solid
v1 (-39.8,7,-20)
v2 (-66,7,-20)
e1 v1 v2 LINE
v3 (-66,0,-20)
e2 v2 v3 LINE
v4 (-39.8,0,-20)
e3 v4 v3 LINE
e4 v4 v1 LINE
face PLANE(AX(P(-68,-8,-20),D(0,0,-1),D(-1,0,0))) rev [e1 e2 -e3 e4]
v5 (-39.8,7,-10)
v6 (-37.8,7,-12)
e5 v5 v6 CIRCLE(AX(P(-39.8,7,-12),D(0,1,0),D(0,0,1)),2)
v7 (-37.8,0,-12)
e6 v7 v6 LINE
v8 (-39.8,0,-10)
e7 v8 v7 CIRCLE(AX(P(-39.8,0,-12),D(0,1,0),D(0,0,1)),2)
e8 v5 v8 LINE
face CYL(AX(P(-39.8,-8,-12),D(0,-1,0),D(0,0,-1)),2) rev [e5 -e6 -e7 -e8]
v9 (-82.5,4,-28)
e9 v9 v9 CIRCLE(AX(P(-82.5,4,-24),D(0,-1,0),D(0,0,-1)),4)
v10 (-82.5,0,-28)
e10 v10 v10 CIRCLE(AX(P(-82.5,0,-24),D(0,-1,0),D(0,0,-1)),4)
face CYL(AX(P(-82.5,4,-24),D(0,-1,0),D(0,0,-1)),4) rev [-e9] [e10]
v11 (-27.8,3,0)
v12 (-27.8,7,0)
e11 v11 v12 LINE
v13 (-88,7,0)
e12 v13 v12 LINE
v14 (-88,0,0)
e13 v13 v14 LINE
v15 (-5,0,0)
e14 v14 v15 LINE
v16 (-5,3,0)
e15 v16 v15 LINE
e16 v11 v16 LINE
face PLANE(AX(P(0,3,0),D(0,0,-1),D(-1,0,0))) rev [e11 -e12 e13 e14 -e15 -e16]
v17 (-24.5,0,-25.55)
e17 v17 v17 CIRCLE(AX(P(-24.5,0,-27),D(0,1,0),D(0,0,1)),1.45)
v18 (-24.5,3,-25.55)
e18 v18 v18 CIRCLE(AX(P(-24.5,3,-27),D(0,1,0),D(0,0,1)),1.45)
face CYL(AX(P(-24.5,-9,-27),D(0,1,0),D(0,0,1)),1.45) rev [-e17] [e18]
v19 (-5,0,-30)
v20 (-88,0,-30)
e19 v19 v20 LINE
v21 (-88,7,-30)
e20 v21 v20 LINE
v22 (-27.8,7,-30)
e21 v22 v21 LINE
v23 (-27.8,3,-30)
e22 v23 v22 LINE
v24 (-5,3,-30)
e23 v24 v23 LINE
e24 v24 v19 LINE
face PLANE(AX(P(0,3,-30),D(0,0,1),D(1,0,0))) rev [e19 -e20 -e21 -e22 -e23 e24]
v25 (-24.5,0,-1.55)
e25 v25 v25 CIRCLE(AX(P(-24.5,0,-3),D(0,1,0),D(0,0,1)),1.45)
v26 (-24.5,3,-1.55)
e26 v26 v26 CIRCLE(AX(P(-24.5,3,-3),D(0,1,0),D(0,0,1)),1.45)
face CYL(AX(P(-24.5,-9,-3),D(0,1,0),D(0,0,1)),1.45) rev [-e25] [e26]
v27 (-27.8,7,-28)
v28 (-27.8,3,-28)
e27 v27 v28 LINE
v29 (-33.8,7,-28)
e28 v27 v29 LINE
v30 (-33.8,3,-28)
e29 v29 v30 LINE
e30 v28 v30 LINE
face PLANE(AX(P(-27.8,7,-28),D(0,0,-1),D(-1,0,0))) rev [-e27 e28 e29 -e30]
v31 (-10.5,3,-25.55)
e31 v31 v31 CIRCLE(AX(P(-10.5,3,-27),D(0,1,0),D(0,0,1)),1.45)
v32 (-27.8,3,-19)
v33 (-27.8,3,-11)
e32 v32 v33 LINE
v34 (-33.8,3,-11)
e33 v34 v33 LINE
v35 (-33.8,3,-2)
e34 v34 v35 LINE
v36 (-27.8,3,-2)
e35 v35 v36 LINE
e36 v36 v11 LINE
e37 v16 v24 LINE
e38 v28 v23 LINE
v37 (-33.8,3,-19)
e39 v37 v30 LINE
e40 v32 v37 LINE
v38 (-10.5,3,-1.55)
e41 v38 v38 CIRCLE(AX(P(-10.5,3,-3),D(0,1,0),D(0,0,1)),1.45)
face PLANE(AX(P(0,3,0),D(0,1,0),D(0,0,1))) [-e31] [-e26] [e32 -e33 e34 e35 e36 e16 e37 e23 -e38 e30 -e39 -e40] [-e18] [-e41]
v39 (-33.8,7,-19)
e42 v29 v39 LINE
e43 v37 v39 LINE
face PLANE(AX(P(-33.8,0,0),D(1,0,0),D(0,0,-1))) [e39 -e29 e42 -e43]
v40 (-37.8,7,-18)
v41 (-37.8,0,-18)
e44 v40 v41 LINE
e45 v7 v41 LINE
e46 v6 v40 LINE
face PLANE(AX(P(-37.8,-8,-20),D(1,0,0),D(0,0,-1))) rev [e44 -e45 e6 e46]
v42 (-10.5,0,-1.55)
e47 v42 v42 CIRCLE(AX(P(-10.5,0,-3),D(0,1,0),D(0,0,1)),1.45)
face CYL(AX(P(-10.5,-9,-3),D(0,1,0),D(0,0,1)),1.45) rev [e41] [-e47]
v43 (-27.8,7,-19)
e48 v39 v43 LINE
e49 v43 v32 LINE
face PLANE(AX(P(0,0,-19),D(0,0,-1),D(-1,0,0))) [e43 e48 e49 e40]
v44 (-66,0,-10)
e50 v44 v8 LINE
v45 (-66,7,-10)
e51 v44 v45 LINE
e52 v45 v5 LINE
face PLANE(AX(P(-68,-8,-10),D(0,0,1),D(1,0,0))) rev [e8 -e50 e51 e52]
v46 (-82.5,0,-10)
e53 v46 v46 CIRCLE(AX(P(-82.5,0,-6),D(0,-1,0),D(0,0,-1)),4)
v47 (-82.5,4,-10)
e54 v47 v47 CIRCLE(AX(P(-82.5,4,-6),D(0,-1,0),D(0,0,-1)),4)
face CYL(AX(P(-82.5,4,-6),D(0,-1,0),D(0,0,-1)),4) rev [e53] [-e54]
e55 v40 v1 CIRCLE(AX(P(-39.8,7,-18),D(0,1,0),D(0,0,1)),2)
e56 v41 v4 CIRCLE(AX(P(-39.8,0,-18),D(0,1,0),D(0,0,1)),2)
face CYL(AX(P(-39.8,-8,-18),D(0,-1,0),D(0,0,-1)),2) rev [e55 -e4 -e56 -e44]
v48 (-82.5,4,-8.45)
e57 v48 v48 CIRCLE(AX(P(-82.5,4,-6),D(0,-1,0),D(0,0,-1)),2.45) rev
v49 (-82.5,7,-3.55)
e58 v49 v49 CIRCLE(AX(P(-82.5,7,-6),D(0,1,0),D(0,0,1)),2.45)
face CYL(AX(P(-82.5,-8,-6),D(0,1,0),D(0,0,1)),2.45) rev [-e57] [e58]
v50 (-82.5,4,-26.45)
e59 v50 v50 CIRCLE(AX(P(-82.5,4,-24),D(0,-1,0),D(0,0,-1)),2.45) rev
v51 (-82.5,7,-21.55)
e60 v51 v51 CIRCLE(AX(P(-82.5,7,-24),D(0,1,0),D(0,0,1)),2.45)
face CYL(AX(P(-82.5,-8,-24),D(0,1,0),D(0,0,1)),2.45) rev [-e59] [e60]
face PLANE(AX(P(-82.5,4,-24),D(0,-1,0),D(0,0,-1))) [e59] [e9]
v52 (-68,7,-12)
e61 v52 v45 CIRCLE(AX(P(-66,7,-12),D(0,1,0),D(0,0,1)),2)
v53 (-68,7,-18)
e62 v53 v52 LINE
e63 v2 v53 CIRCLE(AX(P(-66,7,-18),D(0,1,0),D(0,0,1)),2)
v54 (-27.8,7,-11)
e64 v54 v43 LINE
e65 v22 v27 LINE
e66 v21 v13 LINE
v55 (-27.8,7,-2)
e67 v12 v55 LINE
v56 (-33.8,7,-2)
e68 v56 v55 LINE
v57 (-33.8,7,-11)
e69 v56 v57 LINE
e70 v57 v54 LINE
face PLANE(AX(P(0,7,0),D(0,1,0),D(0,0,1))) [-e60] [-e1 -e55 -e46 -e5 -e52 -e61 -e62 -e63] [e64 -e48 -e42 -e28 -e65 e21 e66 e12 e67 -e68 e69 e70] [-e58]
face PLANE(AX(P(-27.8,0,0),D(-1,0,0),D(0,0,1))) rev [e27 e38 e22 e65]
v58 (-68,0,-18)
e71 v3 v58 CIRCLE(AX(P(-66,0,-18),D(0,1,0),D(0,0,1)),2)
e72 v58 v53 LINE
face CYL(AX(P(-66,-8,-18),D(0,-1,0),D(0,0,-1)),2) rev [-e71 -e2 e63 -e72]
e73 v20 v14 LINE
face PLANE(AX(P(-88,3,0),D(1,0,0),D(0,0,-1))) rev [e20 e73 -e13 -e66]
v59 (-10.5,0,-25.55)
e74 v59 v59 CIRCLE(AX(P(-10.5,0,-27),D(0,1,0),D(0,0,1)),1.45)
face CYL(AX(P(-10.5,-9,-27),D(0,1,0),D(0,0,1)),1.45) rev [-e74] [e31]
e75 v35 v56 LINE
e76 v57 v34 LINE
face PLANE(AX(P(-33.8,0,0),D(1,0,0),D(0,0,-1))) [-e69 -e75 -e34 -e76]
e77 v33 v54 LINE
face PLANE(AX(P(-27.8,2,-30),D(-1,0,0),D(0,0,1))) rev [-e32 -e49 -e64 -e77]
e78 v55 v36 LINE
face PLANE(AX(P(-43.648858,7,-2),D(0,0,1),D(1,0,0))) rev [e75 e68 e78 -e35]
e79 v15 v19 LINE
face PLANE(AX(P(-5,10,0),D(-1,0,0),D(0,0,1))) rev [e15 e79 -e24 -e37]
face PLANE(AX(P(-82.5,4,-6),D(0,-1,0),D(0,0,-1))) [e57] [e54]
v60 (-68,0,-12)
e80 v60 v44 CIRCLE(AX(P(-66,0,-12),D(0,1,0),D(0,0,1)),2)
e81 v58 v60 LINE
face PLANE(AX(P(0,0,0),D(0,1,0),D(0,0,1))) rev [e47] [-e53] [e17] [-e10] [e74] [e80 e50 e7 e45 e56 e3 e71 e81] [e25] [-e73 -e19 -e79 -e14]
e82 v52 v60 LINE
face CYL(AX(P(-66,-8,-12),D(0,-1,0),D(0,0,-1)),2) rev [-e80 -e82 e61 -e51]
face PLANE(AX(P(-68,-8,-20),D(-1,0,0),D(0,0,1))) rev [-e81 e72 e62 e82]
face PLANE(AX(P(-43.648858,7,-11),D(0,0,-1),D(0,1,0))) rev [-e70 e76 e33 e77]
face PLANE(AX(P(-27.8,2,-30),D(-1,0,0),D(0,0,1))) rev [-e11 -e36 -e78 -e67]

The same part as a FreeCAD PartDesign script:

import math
import FreeCAD as App
import Part
import Sketcher
Q = App.Units.Quantity


def edges_at(feature, points):
    """Names of the edges that pass closest to the given points."""
    edges = feature.Shape.Edges
    near = lambda p: min(range(len(edges)), key=lambda i: edges[i].distToShape(Part.Vertex(*p))[0])
    return sorted({f"Edge{near(p) + 1}" for p in points})


def add_polygon(sketch, points):
    """Adds a closed chain of lines whose ends are joined by coincident constraints."""
    first, n = sketch.GeometryCount, len(points)
    for a, b in zip(points, points[1:] + points[:1]):
        sketch.addGeometry(Part.LineSegment(App.Vector(*a, 0), App.Vector(*b, 0)), False)
    for i in range(n):
        sketch.addConstraint(Sketcher.Constraint("Coincident", first + i, 2, first + (i + 1) % n, 1))

doc = App.newDocument("Part")
body = doc.addObject("PartDesign::Body", "Body")

sketch1 = doc.addObject("Sketcher::SketchObject", "Sketch")
body.addObject(sketch1)
sketch1.AttachmentSupport = (doc.XZ_Plane, [""])
sketch1.MapMode = "FlatFace"
add_polygon(sketch1, [(-88, -30), (-88, 0), (0, 0), (0, -30)])
sketch1.addConstraint([
    Sketcher.Constraint("Vertical", 0),
    Sketcher.Constraint("Horizontal", 1),
    Sketcher.Constraint("Vertical", 2),
    Sketcher.Constraint("Horizontal", 3),
    Sketcher.Constraint("Coincident", 1, 2, -1, 1),
    Sketcher.Constraint("DistanceX", 1, 1, 1, 2, Q("88 mm")),
    Sketcher.Constraint("DistanceY", 0, 1, 0, 2, Q("30 mm")),
])
pad1 = doc.addObject("PartDesign::Pad", "Pad")
body.addObject(pad1)
pad1.Profile = sketch1
pad1.Length = 3
pad1.Reversed = True

sketch2 = doc.addObject("Sketcher::SketchObject", "Sketch001")
body.addObject(sketch2)
sketch2.AttachmentSupport = (doc.XZ_Plane, [""])
sketch2.MapMode = "FlatFace"
sketch2.AttachmentOffset = App.Placement(App.Vector(0, 0, -3), App.Rotation())
add_polygon(sketch2, [(-27.8, -30), (-27.8, 0), (0, 0), (0, -30)])
sketch2.addConstraint([
    Sketcher.Constraint("Vertical", 0),
    Sketcher.Constraint("Horizontal", 1),
    Sketcher.Constraint("Vertical", 2),
    Sketcher.Constraint("Horizontal", 3),
    Sketcher.Constraint("Coincident", 1, 2, -1, 1),
    Sketcher.Constraint("DistanceY", 0, 1, 0, 2, Q("30 mm")),
    Sketcher.Constraint("DistanceX", 1, 1, 1, 2, Q("27.8 mm")),
])
pocket1 = doc.addObject("PartDesign::Pocket", "Pocket")
body.addObject(pocket1)
pocket1.Profile = sketch2
pocket1.Length = 1
pocket1.Reversed = True

sketch3 = doc.addObject("Sketcher::SketchObject", "Sketch002")
body.addObject(sketch3)
sketch3.AttachmentSupport = (doc.XZ_Plane, [""])
sketch3.MapMode = "FlatFace"
sketch3.AttachmentOffset = App.Placement(App.Vector(0, 0, -2), App.Rotation())
sketch3.addGeometry([
    Part.Circle(App.Vector(-24.5, -27, 0), App.Vector(0, 0, 1), 1.45),
    Part.Circle(App.Vector(-24.5, -3, 0), App.Vector(0, 0, 1), 1.45),
    Part.Circle(App.Vector(-10.5, -3, 0), App.Vector(0, 0, 1), 1.45),
    Part.Circle(App.Vector(-10.5, -27, 0), App.Vector(0, 0, 1), 1.45),
], False)
sketch3.addConstraint([
    Sketcher.Constraint("Equal", 0, 1),
    Sketcher.Constraint("Equal", 1, 2),
    Sketcher.Constraint("Equal", 2, 3),
    Sketcher.Constraint("Horizontal", 1, 3, 2, 3),
    Sketcher.Constraint("Horizontal", 0, 3, 3, 3),
    Sketcher.Constraint("Vertical", 0, 3, 1, 3),
    Sketcher.Constraint("Vertical", 2, 3, 3, 3),
    Sketcher.Constraint("Diameter", 0, Q("2.9 mm")),
    Sketcher.Constraint("DistanceY", 0, 3, -1, 1, Q("27 mm")),
    Sketcher.Constraint("DistanceY", 1, 3, -1, 1, Q("3 mm")),
    Sketcher.Constraint("DistanceX", 1, 3, 2, 3, Q("14 mm")),
    Sketcher.Constraint("DistanceX", 0, 3, -1, 1, Q("24.5 mm")),
])
pocket2 = doc.addObject("PartDesign::Pocket", "Pocket001")
body.addObject(pocket2)
pocket2.Profile = sketch3
pocket2.Length = 11
pocket2.Reversed = True

sketch4 = doc.addObject("Sketcher::SketchObject", "Sketch003")
body.addObject(sketch4)
sketch4.AttachmentSupport = (doc.XZ_Plane, [""])
sketch4.MapMode = "FlatFace"
sketch4.AttachmentOffset = App.Placement(App.Vector(0, 0, -3), App.Rotation())
sketch4.addGeometry([
    Part.Circle(App.Vector(-82.5, -24, 0), App.Vector(0, 0, 1), 2.45),
    Part.Circle(App.Vector(-82.5, -6, 0), App.Vector(0, 0, 1), 2.45),
], False)
sketch4.addConstraint([
    Sketcher.Constraint("Equal", 0, 1),
    Sketcher.Constraint("Vertical", 0, 3, 1, 3),
    Sketcher.Constraint("Diameter", 0, Q("4.9 mm")),
    Sketcher.Constraint("DistanceY", 0, 3, -1, 1, Q("24 mm")),
    Sketcher.Constraint("DistanceY", 1, 3, -1, 1, Q("6 mm")),
    Sketcher.Constraint("DistanceX", 0, 3, -1, 1, Q("82.5 mm")),
])
pocket3 = doc.addObject("PartDesign::Pocket", "Pocket002")
body.addObject(pocket3)
pocket3.Profile = sketch4
pocket3.Length = 11
pocket3.Reversed = True

sketch5 = doc.addObject("Sketcher::SketchObject", "Sketch004")
body.addObject(sketch5)
sketch5.AttachmentSupport = (doc.XZ_Plane, [""])
sketch5.MapMode = "FlatFace"
sketch5.AttachmentOffset = App.Placement(App.Vector(0, 0, -3), App.Rotation())
add_polygon(sketch5, [(-68, -20), (-68, -10), (-37.8, -10), (-37.8, -20)])
sketch5.addConstraint([
    Sketcher.Constraint("Vertical", 0),
    Sketcher.Constraint("Horizontal", 1),
    Sketcher.Constraint("Vertical", 2),
    Sketcher.Constraint("Horizontal", 3),
    Sketcher.Constraint("DistanceY", 0, 1, 0, 2, Q("10 mm")),
    Sketcher.Constraint("DistanceX", 1, 1, 1, 2, Q("30.2 mm")),
    Sketcher.Constraint("DistanceX", 0, 2, -1, 1, Q("68 mm")),
    Sketcher.Constraint("DistanceY", 0, 2, -1, 1, Q("10 mm")),
])
pocket4 = doc.addObject("PartDesign::Pocket", "Pocket003")
body.addObject(pocket4)
pocket4.Profile = sketch5
pocket4.Length = 11
pocket4.Reversed = True
doc.recompute()

fillet = doc.addObject("PartDesign::Fillet", "Fillet")
body.addObject(fillet)
fillet.Base = (pocket4, edges_at(pocket4, [
    (-68, 1.5, -10),
    (-68, 1.5, -20),
    (-37.8, 1.5, -20),
    (-37.8, 1.5, -10),
]))
fillet.Radius = 2

sketch6 = doc.addObject("Sketcher::SketchObject", "Sketch005")
body.addObject(sketch6)
sketch6.AttachmentSupport = (doc.XZ_Plane, [""])
sketch6.MapMode = "FlatFace"
add_polygon(sketch6, [(-5, 0), (-5, -30), (0, -30), (0, 0)])
sketch6.addConstraint([
    Sketcher.Constraint("Vertical", 0),
    Sketcher.Constraint("Horizontal", 1),
    Sketcher.Constraint("Vertical", 2),
    Sketcher.Constraint("Horizontal", 3),
    Sketcher.Constraint("Coincident", 2, 2, -1, 1),
    Sketcher.Constraint("DistanceX", 1, 1, 1, 2, Q("5 mm")),
    Sketcher.Constraint("DistanceY", 0, 2, 0, 1, Q("30 mm")),
])
pocket5 = doc.addObject("PartDesign::Pocket", "Pocket004")
body.addObject(pocket5)
pocket5.Profile = sketch6
pocket5.Length = 10

sketch7 = doc.addObject("Sketcher::SketchObject", "Sketch006")
body.addObject(sketch7)
sketch7.AttachmentSupport = (doc.XZ_Plane, [""])
sketch7.MapMode = "FlatFace"
sketch7.AttachmentOffset = App.Placement(App.Vector(0, 0, -3), App.Rotation())
add_polygon(sketch7, [(-88, -30), (-88, 0), (-27.8, 0), (-27.8, -30)])
sketch7.addGeometry(Part.Circle(App.Vector(-82.5, -6, 0), App.Vector(0, 0, 1), 2.45), False)
sketch7.addGeometry(Part.Circle(App.Vector(-82.5, -24, 0), App.Vector(0, 0, 1), 2.45), False)
sketch7.addGeometry(Part.LineSegment(App.Vector(-37.8, -18, 0), App.Vector(-37.8, -12, 0)), False)
sketch7.addGeometry(Part.ArcOfCircle(Part.Circle(App.Vector(-39.8, -12, 0), App.Vector(0, 0, 1), 2), math.radians(0), math.radians(90)), False)
sketch7.addGeometry(Part.LineSegment(App.Vector(-39.8, -10, 0), App.Vector(-66, -10, 0)), False)
sketch7.addGeometry(Part.ArcOfCircle(Part.Circle(App.Vector(-66, -12, 0), App.Vector(0, 0, 1), 2), math.radians(90), math.radians(180)), False)
sketch7.addGeometry(Part.LineSegment(App.Vector(-68, -12, 0), App.Vector(-68, -18, 0)), False)
sketch7.addGeometry(Part.ArcOfCircle(Part.Circle(App.Vector(-66, -18, 0), App.Vector(0, 0, 1), 2), math.radians(-180), math.radians(-90)), False)
sketch7.addGeometry(Part.LineSegment(App.Vector(-66, -20, 0), App.Vector(-39.8, -20, 0)), False)
sketch7.addGeometry(Part.ArcOfCircle(Part.Circle(App.Vector(-39.8, -18, 0), App.Vector(0, 0, 1), 2), math.radians(-90), math.radians(0)), False)
sketch7.addConstraint([
    Sketcher.Constraint("Tangent", 6, 2, 7, 1),
    Sketcher.Constraint("Tangent", 7, 2, 8, 1),
    Sketcher.Constraint("Tangent", 8, 2, 9, 1),
    Sketcher.Constraint("Tangent", 9, 2, 10, 1),
    Sketcher.Constraint("Tangent", 10, 2, 11, 1),
    Sketcher.Constraint("Tangent", 11, 2, 12, 1),
    Sketcher.Constraint("Tangent", 12, 2, 13, 1),
    Sketcher.Constraint("Tangent", 13, 2, 6, 1),
    Sketcher.Constraint("Vertical", 0),
    Sketcher.Constraint("Horizontal", 1),
    Sketcher.Constraint("Vertical", 2),
    Sketcher.Constraint("Horizontal", 3),
    Sketcher.Constraint("Vertical", 6),
    Sketcher.Constraint("Horizontal", 8),
    Sketcher.Constraint("Vertical", 10),
    Sketcher.Constraint("Horizontal", 12),
    Sketcher.Constraint("Equal", 4, 5),
    Sketcher.Constraint("Equal", 7, 9),
    Sketcher.Constraint("Equal", 9, 11),
    Sketcher.Constraint("Equal", 11, 13),
    Sketcher.Constraint("PointOnObject", 0, 2, -1),
    Sketcher.Constraint("Vertical", 4, 3, 5, 3),
    Sketcher.Constraint("Radius", 7, Q("2 mm")),
    Sketcher.Constraint("Diameter", 4, Q("4.9 mm")),
    Sketcher.Constraint("DistanceY", 0, 1, 0, 2, Q("30 mm")),
    Sketcher.Constraint("DistanceY", 6, 1, 6, 2, Q("6 mm")),
    Sketcher.Constraint("DistanceX", 1, 1, 1, 2, Q("60.2 mm")),
    Sketcher.Constraint("DistanceX", 8, 2, 8, 1, Q("26.2 mm")),
    Sketcher.Constraint("DistanceY", 4, 3, -1, 1, Q("6 mm")),
    Sketcher.Constraint("DistanceY", 5, 3, -1, 1, Q("24 mm")),
    Sketcher.Constraint("DistanceY", 7, 3, -1, 1, Q("12 mm")),
    Sketcher.Constraint("DistanceX", 9, 3, -1, 1, Q("66 mm")),
    Sketcher.Constraint("DistanceX", 0, 2, -1, 1, Q("88 mm")),
    Sketcher.Constraint("DistanceX", 4, 3, -1, 1, Q("82.5 mm")),
])
pad2 = doc.addObject("PartDesign::Pad", "Pad001")
body.addObject(pad2)
pad2.Profile = sketch7
pad2.Length = 4
pad2.Reversed = True

sketch8 = doc.addObject("Sketcher::SketchObject", "Sketch007")
body.addObject(sketch8)
sketch8.AttachmentSupport = (doc.XZ_Plane, [""])
sketch8.MapMode = "FlatFace"
sketch8.AttachmentOffset = App.Placement(App.Vector(0, 0, -3), App.Rotation())
add_polygon(sketch8, [(-27.8, -30), (-27.8, 0), (-5, 0), (-5, -30)])
sketch8.addGeometry(Part.Circle(App.Vector(-24.5, -3, 0), App.Vector(0, 0, 1), 1.45), False)
sketch8.addGeometry(Part.Circle(App.Vector(-10.5, -3, 0), App.Vector(0, 0, 1), 1.45), False)
sketch8.addGeometry(Part.Circle(App.Vector(-24.5, -27, 0), App.Vector(0, 0, 1), 1.45), False)
sketch8.addGeometry(Part.Circle(App.Vector(-10.5, -27, 0), App.Vector(0, 0, 1), 1.45), False)
sketch8.addConstraint([
    Sketcher.Constraint("Vertical", 0),
    Sketcher.Constraint("Horizontal", 1),
    Sketcher.Constraint("Vertical", 2),
    Sketcher.Constraint("Horizontal", 3),
    Sketcher.Constraint("Equal", 4, 5),
    Sketcher.Constraint("Equal", 5, 6),
    Sketcher.Constraint("Equal", 6, 7),
    Sketcher.Constraint("PointOnObject", 0, 2, -1),
    Sketcher.Constraint("Horizontal", 4, 3, 5, 3),
    Sketcher.Constraint("Horizontal", 6, 3, 7, 3),
    Sketcher.Constraint("Vertical", 4, 3, 6, 3),
    Sketcher.Constraint("Vertical", 5, 3, 7, 3),
    Sketcher.Constraint("Diameter", 4, Q("2.9 mm")),
    Sketcher.Constraint("DistanceY", 0, 1, 0, 2, Q("30 mm")),
    Sketcher.Constraint("DistanceX", 1, 1, 1, 2, Q("22.8 mm")),
    Sketcher.Constraint("DistanceY", 4, 3, -1, 1, Q("3 mm")),
    Sketcher.Constraint("DistanceY", 6, 3, -1, 1, Q("27 mm")),
    Sketcher.Constraint("DistanceX", 1, 2, -1, 1, Q("5 mm")),
    Sketcher.Constraint("DistanceX", 4, 3, 5, 3, Q("14 mm")),
    Sketcher.Constraint("DistanceX", 4, 3, -1, 1, Q("24.5 mm")),
])
pad3 = doc.addObject("PartDesign::Pad", "Pad002")
body.addObject(pad3)
pad3.Profile = sketch8
pad3.Length = 1

sketch9 = doc.addObject("Sketcher::SketchObject", "Sketch008")
body.addObject(sketch9)
sketch9.AttachmentSupport = (doc.YZ_Plane, [""])
sketch9.MapMode = "FlatFace"
sketch9.AttachmentOffset = App.Placement(App.Vector(0, 0, -27.8), App.Rotation())
add_polygon(sketch9, [(7, -15), (3, -15), (3, -30), (7, -30)])
sketch9.addConstraint([
    Sketcher.Constraint("Horizontal", 0),
    Sketcher.Constraint("Vertical", 1),
    Sketcher.Constraint("Horizontal", 2),
    Sketcher.Constraint("Vertical", 3),
    Sketcher.Constraint("DistanceX", 0, 2, 0, 1, Q("4 mm")),
    Sketcher.Constraint("DistanceY", 1, 2, 1, 1, Q("15 mm")),
    Sketcher.Constraint("DistanceX", -1, 1, 0, 2, Q("3 mm")),
    Sketcher.Constraint("DistanceY", 0, 2, -1, 1, Q("15 mm")),
])
pocket6 = doc.addObject("PartDesign::Pocket", "Pocket005")
body.addObject(pocket6)
pocket6.Profile = sketch9
pocket6.Length = 6

sketch10 = doc.addObject("Sketcher::SketchObject", "Sketch009")
body.addObject(sketch10)
sketch10.AttachmentSupport = (doc.YZ_Plane, [""])
sketch10.MapMode = "FlatFace"
sketch10.AttachmentOffset = App.Placement(App.Vector(0, 0, -33.8), App.Rotation())
add_polygon(sketch10, [(7, -28), (3, -28), (3, -30), (7, -30)])
sketch10.addConstraint([
    Sketcher.Constraint("Horizontal", 0),
    Sketcher.Constraint("Vertical", 1),
    Sketcher.Constraint("Horizontal", 2),
    Sketcher.Constraint("Vertical", 3),
    Sketcher.Constraint("DistanceX", 0, 2, 0, 1, Q("4 mm")),
    Sketcher.Constraint("DistanceY", 1, 2, 1, 1, Q("2 mm")),
    Sketcher.Constraint("DistanceX", -1, 1, 0, 2, Q("3 mm")),
    Sketcher.Constraint("DistanceY", 0, 2, -1, 1, Q("28 mm")),
])
pad4 = doc.addObject("PartDesign::Pad", "Pad003")
body.addObject(pad4)
pad4.Profile = sketch10
pad4.Length = 6

sketch11 = doc.addObject("Sketcher::SketchObject", "Sketch010")
body.addObject(sketch11)
sketch11.AttachmentSupport = (doc.XY_Plane, [""])
sketch11.MapMode = "FlatFace"
sketch11.AttachmentOffset = App.Placement(App.Vector(0, 0, -15), App.Rotation())
add_polygon(sketch11, [(-27.8, 7), (-27.8, 3), (-33.8, 3), (-33.8, 7)])
sketch11.addConstraint([
    Sketcher.Constraint("Vertical", 0),
    Sketcher.Constraint("Horizontal", 1),
    Sketcher.Constraint("Vertical", 2),
    Sketcher.Constraint("Horizontal", 3),
    Sketcher.Constraint("DistanceX", 1, 2, 1, 1, Q("6 mm")),
    Sketcher.Constraint("DistanceY", 0, 2, 0, 1, Q("4 mm")),
    Sketcher.Constraint("DistanceY", -1, 1, 0, 2, Q("3 mm")),
    Sketcher.Constraint("DistanceX", 0, 2, -1, 1, Q("27.8 mm")),
])
pad5 = doc.addObject("PartDesign::Pad", "Pad004")
body.addObject(pad5)
pad5.Profile = sketch11
pad5.Length = 4
pad5.Reversed = True

sketch12 = doc.addObject("Sketcher::SketchObject", "Sketch011")
body.addObject(sketch12)
sketch12.AttachmentSupport = (doc.XZ_Plane, [""])
sketch12.MapMode = "FlatFace"
sketch12.addGeometry([
    Part.Circle(App.Vector(-82.5, -6, 0), App.Vector(0, 0, 1), 4),
    Part.Circle(App.Vector(-82.5, -24, 0), App.Vector(0, 0, 1), 4),
], False)
sketch12.addConstraint([
    Sketcher.Constraint("Equal", 0, 1),
    Sketcher.Constraint("Vertical", 0, 3, 1, 3),
    Sketcher.Constraint("Diameter", 0, Q("8 mm")),
    Sketcher.Constraint("DistanceY", 0, 3, -1, 1, Q("6 mm")),
    Sketcher.Constraint("DistanceY", 1, 3, -1, 1, Q("24 mm")),
    Sketcher.Constraint("DistanceX", 0, 3, -1, 1, Q("82.5 mm")),
])
pocket7 = doc.addObject("PartDesign::Pocket", "Pocket006")
body.addObject(pocket7)
pocket7.Profile = sketch12
pocket7.Length = 4

sketch13 = doc.addObject("Sketcher::SketchObject", "Sketch012")
body.addObject(sketch13)
sketch13.AttachmentSupport = (doc.YZ_Plane, [""])
sketch13.MapMode = "FlatFace"
sketch13.AttachmentOffset = App.Placement(App.Vector(0, 0, -27.8), App.Rotation())
add_polygon(sketch13, [(7, -2), (3, -2), (3, -11), (7, -11)])
sketch13.addConstraint([
    Sketcher.Constraint("Horizontal", 0),
    Sketcher.Constraint("Vertical", 1),
    Sketcher.Constraint("Horizontal", 2),
    Sketcher.Constraint("Vertical", 3),
    Sketcher.Constraint("DistanceX", 0, 2, 0, 1, Q("4 mm")),
    Sketcher.Constraint("DistanceY", 1, 2, 1, 1, Q("9 mm")),
    Sketcher.Constraint("DistanceX", -1, 1, 0, 2, Q("3 mm")),
    Sketcher.Constraint("DistanceY", 0, 2, -1, 1, Q("2 mm")),
])
pocket8 = doc.addObject("PartDesign::Pocket", "Pocket007")
body.addObject(pocket8)
pocket8.Profile = sketch13
pocket8.Length = 6

doc.recompute()
